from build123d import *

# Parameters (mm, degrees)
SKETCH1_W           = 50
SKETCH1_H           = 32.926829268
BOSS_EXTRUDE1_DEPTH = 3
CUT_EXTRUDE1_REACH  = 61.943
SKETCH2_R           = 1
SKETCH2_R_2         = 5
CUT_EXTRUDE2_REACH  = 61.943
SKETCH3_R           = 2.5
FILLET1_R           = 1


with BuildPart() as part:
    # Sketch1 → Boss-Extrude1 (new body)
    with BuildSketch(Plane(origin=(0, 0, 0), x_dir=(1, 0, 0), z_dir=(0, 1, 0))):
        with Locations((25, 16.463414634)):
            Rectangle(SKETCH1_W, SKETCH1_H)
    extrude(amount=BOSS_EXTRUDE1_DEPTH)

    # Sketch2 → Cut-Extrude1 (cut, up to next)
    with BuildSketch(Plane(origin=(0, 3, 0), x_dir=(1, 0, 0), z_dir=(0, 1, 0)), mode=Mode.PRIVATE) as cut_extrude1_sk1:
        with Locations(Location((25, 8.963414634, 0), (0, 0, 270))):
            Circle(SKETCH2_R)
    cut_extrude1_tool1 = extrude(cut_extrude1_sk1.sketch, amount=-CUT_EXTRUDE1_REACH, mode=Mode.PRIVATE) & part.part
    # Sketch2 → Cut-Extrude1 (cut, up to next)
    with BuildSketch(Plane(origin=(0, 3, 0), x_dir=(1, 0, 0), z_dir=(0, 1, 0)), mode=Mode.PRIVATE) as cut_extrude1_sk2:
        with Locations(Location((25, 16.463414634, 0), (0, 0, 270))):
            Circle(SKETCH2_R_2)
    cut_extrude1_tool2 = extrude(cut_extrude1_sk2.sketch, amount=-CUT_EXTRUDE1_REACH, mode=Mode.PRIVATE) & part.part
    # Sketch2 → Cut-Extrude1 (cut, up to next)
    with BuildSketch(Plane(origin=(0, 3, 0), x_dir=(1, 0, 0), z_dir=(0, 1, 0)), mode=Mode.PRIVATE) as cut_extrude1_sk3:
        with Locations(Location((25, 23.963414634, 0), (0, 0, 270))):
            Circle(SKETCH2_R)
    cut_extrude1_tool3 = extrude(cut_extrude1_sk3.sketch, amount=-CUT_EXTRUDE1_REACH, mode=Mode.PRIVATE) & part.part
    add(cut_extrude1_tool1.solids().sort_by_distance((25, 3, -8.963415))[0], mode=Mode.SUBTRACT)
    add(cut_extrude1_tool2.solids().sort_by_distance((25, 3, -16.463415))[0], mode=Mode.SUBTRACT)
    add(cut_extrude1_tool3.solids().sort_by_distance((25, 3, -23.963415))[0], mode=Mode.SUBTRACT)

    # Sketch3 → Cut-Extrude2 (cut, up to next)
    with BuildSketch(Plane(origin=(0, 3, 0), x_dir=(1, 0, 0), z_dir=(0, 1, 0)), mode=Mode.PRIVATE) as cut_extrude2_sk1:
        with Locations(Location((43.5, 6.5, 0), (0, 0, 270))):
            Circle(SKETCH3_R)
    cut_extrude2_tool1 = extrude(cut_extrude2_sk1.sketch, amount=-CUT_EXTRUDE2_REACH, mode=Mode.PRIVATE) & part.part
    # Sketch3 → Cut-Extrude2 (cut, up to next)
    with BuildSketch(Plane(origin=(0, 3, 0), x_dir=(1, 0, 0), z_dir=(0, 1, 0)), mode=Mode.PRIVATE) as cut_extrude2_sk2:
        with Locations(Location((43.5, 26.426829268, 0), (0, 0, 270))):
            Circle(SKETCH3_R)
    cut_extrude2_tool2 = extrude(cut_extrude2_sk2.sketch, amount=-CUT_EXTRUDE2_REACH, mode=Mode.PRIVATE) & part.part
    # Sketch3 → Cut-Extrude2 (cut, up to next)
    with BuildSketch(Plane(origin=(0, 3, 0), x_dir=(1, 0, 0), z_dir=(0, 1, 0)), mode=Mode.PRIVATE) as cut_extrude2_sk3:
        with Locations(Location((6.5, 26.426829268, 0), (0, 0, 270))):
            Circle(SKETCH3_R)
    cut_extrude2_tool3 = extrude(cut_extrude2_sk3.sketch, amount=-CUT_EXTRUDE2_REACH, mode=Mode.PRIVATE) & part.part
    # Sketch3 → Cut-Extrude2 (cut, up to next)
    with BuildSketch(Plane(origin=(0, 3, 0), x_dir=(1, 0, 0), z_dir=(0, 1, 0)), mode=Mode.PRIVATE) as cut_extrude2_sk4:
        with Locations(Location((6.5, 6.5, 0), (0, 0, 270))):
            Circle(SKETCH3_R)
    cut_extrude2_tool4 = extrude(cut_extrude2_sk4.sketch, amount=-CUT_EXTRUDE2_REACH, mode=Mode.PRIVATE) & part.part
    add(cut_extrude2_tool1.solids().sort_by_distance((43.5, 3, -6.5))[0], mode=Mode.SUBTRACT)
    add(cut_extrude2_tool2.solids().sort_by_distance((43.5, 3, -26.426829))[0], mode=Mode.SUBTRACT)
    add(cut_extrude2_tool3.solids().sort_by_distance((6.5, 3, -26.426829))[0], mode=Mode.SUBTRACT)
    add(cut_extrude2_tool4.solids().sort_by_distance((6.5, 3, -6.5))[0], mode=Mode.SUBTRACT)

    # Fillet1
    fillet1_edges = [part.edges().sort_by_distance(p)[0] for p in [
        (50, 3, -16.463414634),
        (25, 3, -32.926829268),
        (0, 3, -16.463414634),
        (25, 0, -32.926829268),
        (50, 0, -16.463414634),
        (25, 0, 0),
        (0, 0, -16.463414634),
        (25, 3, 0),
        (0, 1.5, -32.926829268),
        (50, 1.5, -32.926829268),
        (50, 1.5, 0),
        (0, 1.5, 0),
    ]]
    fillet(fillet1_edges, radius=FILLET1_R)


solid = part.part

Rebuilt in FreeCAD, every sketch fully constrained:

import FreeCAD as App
import Part
import Sketcher
from FreeCAD import Vector


def edges_at(feature, points):
    """Names of the edges that pass closest to the given points."""
    edges = feature.Shape.Edges
    near = lambda p: min(range(len(edges)), key=lambda i: edges[i].distToShape(Part.Vertex(*p))[0])
    return sorted({f"Edge{near(p) + 1}" for p in points})


def add_polygon(sketch, points):
    """Adds a closed chain of lines whose ends are joined by coincident constraints."""
    first, n = sketch.GeometryCount, len(points)
    for a, b in zip(points, points[1:] + points[:1]):
        sketch.addGeometry(Part.LineSegment(App.Vector(*a, 0), App.Vector(*b, 0)), False)
    for i in range(n):
        sketch.addConstraint(Sketcher.Constraint("Coincident", first + i, 2, first + (i + 1) % n, 1))

doc = App.newDocument("Part")
body = doc.addObject("PartDesign::Body", "Body")

sketch1 = body.newObject("Sketcher::SketchObject", "Sketch")
sketch1.AttachmentSupport = (doc.getObject("XZ_Plane"), [""])
sketch1.MapMode = "FlatFace"
add_polygon(sketch1, [(0, -33), (0, 0), (50, 0), (50, -33)])
sketch1.addConstraint([
    Sketcher.Constraint("Vertical", 0),
    Sketcher.Constraint("Horizontal", 1),
    Sketcher.Constraint("Vertical", 2),
    Sketcher.Constraint("Horizontal", 3),
    Sketcher.Constraint("Coincident", 0, 2, -1, 1),
    Sketcher.Constraint("DistanceX", 1, 1, 1, 2, 50.0),
    Sketcher.Constraint("DistanceY", 0, 1, 0, 2, 32.926829),
])
pad1 = body.newObject("PartDesign::Pad", "Pad")
pad1.Profile = sketch1
pad1.Length = 3
pad1.Reversed = True

sketch2 = body.newObject("Sketcher::SketchObject", "Sketch001")
sketch2.AttachmentSupport = (doc.getObject("XZ_Plane"), [""])
sketch2.MapMode = "FlatFace"
sketch2.AttachmentOffset = App.Placement(Vector(0, 0, -3), App.Rotation())
sketch2.addGeometry(Part.Circle(Vector(25, -9, 0), Vector(0, 0, 1), 1), False)
sketch2.addConstraint([
    Sketcher.Constraint("Diameter", 0, 2.0),
    Sketcher.Constraint("DistanceX", -1, 1, 0, 3, 25.0),
    Sketcher.Constraint("DistanceY", 0, 3, -1, 1, 8.963415),
])
pocket1 = body.newObject("PartDesign::Pocket", "Pocket")
pocket1.Profile = sketch2
pocket1.Type = "UpToFirst"
pocket1.Reversed = True

sketch3 = body.newObject("Sketcher::SketchObject", "Sketch002")
sketch3.AttachmentSupport = (doc.getObject("XZ_Plane"), [""])
sketch3.MapMode = "FlatFace"
sketch3.AttachmentOffset = App.Placement(Vector(0, 0, -3), App.Rotation())
sketch3.addGeometry(Part.Circle(Vector(25, -16, 0), Vector(0, 0, 1), 5), False)
sketch3.addConstraint([
    Sketcher.Constraint("Diameter", 0, 10.0),
    Sketcher.Constraint("DistanceX", -1, 1, 0, 3, 25.0),
    Sketcher.Constraint("DistanceY", 0, 3, -1, 1, 16.463415),
])
pocket2 = body.newObject("PartDesign::Pocket", "Pocket001")
pocket2.Profile = sketch3
pocket2.Type = "UpToFirst"
pocket2.Reversed = True

sketch4 = body.newObject("Sketcher::SketchObject", "Sketch003")
sketch4.AttachmentSupport = (doc.getObject("XZ_Plane"), [""])
sketch4.MapMode = "FlatFace"
sketch4.AttachmentOffset = App.Placement(Vector(0, 0, -3), App.Rotation())
sketch4.addGeometry(Part.Circle(Vector(25, -24, 0), Vector(0, 0, 1), 1), False)
sketch4.addConstraint([
    Sketcher.Constraint("Diameter", 0, 2.0),
    Sketcher.Constraint("DistanceX", -1, 1, 0, 3, 25.0),
    Sketcher.Constraint("DistanceY", 0, 3, -1, 1, 23.963415),
])
pocket3 = body.newObject("PartDesign::Pocket", "Pocket002")
pocket3.Profile = sketch4
pocket3.Type = "UpToFirst"
pocket3.Reversed = True

sketch5 = body.newObject("Sketcher::SketchObject", "Sketch004")
sketch5.AttachmentSupport = (doc.getObject("XZ_Plane"), [""])
sketch5.MapMode = "FlatFace"
sketch5.AttachmentOffset = App.Placement(Vector(0, 0, -3), App.Rotation())
sketch5.addGeometry(Part.Circle(Vector(43.5, -6.5, 0), Vector(0, 0, 1), 2.5), False)
sketch5.addConstraint([
    Sketcher.Constraint("Diameter", 0, 5.0),
    Sketcher.Constraint("DistanceX", -1, 1, 0, 3, 43.5),
    Sketcher.Constraint("DistanceY", 0, 3, -1, 1, 6.5),
])
pocket4 = body.newObject("PartDesign::Pocket", "Pocket003")
pocket4.Profile = sketch5
pocket4.Type = "UpToFirst"
pocket4.Reversed = True

sketch6 = body.newObject("Sketcher::SketchObject", "Sketch005")
sketch6.AttachmentSupport = (doc.getObject("XZ_Plane"), [""])
sketch6.MapMode = "FlatFace"
sketch6.AttachmentOffset = App.Placement(Vector(0, 0, -3), App.Rotation())
sketch6.addGeometry(Part.Circle(Vector(43.5, -26.4, 0), Vector(0, 0, 1), 2.5), False)
sketch6.addConstraint([
    Sketcher.Constraint("Diameter", 0, 5.0),
    Sketcher.Constraint("DistanceX", -1, 1, 0, 3, 43.5),
    Sketcher.Constraint("DistanceY", 0, 3, -1, 1, 26.426829),
])
pocket5 = body.newObject("PartDesign::Pocket", "Pocket004")
pocket5.Profile = sketch6
pocket5.Type = "UpToFirst"
pocket5.Reversed = True

sketch7 = body.newObject("Sketcher::SketchObject", "Sketch006")
sketch7.AttachmentSupport = (doc.getObject("XZ_Plane"), [""])
sketch7.MapMode = "FlatFace"
sketch7.AttachmentOffset = App.Placement(Vector(0, 0, -3), App.Rotation())
sketch7.addGeometry(Part.Circle(Vector(6.5, -26.4, 0), Vector(0, 0, 1), 2.5), False)
sketch7.addConstraint([
    Sketcher.Constraint("Diameter", 0, 5.0),
    Sketcher.Constraint("DistanceX", -1, 1, 0, 3, 6.5),
    Sketcher.Constraint("DistanceY", 0, 3, -1, 1, 26.426829),
])
pocket6 = body.newObject("PartDesign::Pocket", "Pocket005")
pocket6.Profile = sketch7
pocket6.Type = "UpToFirst"
pocket6.Reversed = True

sketch8 = body.newObject("Sketcher::SketchObject", "Sketch007")
sketch8.AttachmentSupport = (doc.getObject("XZ_Plane"), [""])
sketch8.MapMode = "FlatFace"
sketch8.AttachmentOffset = App.Placement(Vector(0, 0, -3), App.Rotation())
sketch8.addGeometry(Part.Circle(Vector(6.5, -6.5, 0), Vector(0, 0, 1), 2.5), False)
sketch8.addConstraint([
    Sketcher.Constraint("Diameter", 0, 5.0),
    Sketcher.Constraint("DistanceX", -1, 1, 0, 3, 6.5),
    Sketcher.Constraint("DistanceY", 0, 3, -1, 1, 6.5),
])
pocket7 = body.newObject("PartDesign::Pocket", "Pocket006")
pocket7.Profile = sketch8
pocket7.Type = "UpToFirst"
pocket7.Reversed = True
doc.recompute()

fillet = body.newObject("PartDesign::Fillet", "Fillet")
fillet.Base = (pocket7, edges_at(pocket7, [
    (50, 3, -16.463),
    (25, 3, -32.927),
    (0, 3, -16.463),
    (25, 0, -32.927),
    (50, 0, -16.463),
    (25, 0, 0),
    (0, 0, -16.463),
    (25, 3, 0),
    (0, 1.5, -32.927),
    (50, 1.5, -32.927),
    (50, 1.5, 0),
    (0, 1.5, 0),
]))
fillet.Radius = 1

doc.recompute()
